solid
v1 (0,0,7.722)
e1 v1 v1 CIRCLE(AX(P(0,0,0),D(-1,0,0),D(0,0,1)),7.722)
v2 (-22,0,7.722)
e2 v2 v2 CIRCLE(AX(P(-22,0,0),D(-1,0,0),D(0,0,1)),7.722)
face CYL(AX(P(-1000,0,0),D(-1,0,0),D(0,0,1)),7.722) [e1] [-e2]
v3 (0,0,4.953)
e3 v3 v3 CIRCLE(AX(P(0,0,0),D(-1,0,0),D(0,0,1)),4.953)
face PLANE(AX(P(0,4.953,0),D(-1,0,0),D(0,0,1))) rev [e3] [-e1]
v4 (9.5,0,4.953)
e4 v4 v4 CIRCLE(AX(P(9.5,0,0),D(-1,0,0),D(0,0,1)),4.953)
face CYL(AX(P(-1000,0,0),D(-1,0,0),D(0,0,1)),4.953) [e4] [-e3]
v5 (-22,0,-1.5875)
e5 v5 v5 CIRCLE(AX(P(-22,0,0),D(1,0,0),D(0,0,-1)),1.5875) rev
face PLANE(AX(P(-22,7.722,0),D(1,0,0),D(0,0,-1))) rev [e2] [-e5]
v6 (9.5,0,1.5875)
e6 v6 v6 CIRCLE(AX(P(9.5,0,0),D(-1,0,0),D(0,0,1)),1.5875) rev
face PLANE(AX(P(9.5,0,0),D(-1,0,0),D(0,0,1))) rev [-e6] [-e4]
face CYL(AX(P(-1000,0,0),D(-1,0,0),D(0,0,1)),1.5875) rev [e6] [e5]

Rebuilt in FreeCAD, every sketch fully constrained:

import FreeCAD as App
import Part
import Sketcher

V = App.Vector


def add_polygon(sketch, points):
    """Adds a closed chain of lines whose ends are joined by coincident constraints."""
    first, n = sketch.GeometryCount, len(points)
    for a, b in zip(points, points[1:] + points[:1]):
        sketch.addGeometry(Part.LineSegment(App.Vector(*a, 0), App.Vector(*b, 0)), False)
    for i in range(n):
        sketch.addConstraint(Sketcher.Constraint("Coincident", first + i, 2, first + (i + 1) % n, 1))

doc = App.newDocument("Part")
body = doc.addObject("PartDesign::Body", "Body")

# Sketch on XY plane
sketch1 = body.newObject("Sketcher::SketchObject", "Sketch")
sketch1.AttachmentSupport = (doc.getObject("XY_Plane"), [""])
sketch1.MapMode = "FlatFace"
add_polygon(sketch1, [(9.5, 0), (9.5, 5), (0, 5), (0, 7.7), (-22, 7.7), (-22, 0)])  # lines 0-5
sketch1.addConstraint(Sketcher.Constraint("Vertical", 0))
sketch1.addConstraint(Sketcher.Constraint("Horizontal", 1))
sketch1.addConstraint(Sketcher.Constraint("Vertical", 2))
sketch1.addConstraint(Sketcher.Constraint("Horizontal", 3))
sketch1.addConstraint(Sketcher.Constraint("Vertical", 4))
sketch1.addConstraint(Sketcher.Constraint("Horizontal", 5))
sketch1.addConstraint(Sketcher.Constraint("PointOnObject", 1, 2, -2))
sketch1.addConstraint(Sketcher.Constraint("PointOnObject", 4, 2, -1))
sketch1.addConstraint(Sketcher.Constraint("DistanceX", 3, 2, 3, 1, 22.0))
sketch1.addConstraint(Sketcher.Constraint("DistanceX", 1, 2, 1, 1, 9.5))
sketch1.addConstraint(Sketcher.Constraint("DistanceY", 0, 1, 0, 2, 4.953))
sketch1.addConstraint(Sketcher.Constraint("DistanceY", 2, 1, 2, 2, 2.769))
revolution = body.newObject("PartDesign::Revolution", "Revolution")
revolution.Profile = sketch1
revolution.ReferenceAxis = (sketch1, ["H_Axis"])
revolution.Angle = 360

# Sketch on XY plane
sketch2 = body.newObject("Sketcher::SketchObject", "Sketch001")
sketch2.AttachmentSupport = (doc.getObject("XY_Plane"), [""])
sketch2.MapMode = "FlatFace"
add_polygon(sketch2, [(-23, 1.6), (-23, 0), (10.5, 0), (10.5, 1.6)])  # lines 0-3
sketch2.addConstraint(Sketcher.Constraint("Vertical", 0))
sketch2.addConstraint(Sketcher.Constraint("Horizontal", 1))
sketch2.addConstraint(Sketcher.Constraint("Vertical", 2))
sketch2.addConstraint(Sketcher.Constraint("Horizontal", 3))
sketch2.addConstraint(Sketcher.Constraint("PointOnObject", 0, 2, -1))
sketch2.addConstraint(Sketcher.Constraint("DistanceX", 1, 1, 1, 2, 33.5))
sketch2.addConstraint(Sketcher.Constraint("DistanceX", 0, 2, -1, 1, 23.0))
sketch2.addConstraint(Sketcher.Constraint("DistanceY", 0, 2, 0, 1, 1.5875))
groove = body.newObject("PartDesign::Groove", "Groove")
groove.Profile = sketch2
groove.ReferenceAxis = (sketch2, ["H_Axis"])
groove.Angle = 360

doc.recompute()
